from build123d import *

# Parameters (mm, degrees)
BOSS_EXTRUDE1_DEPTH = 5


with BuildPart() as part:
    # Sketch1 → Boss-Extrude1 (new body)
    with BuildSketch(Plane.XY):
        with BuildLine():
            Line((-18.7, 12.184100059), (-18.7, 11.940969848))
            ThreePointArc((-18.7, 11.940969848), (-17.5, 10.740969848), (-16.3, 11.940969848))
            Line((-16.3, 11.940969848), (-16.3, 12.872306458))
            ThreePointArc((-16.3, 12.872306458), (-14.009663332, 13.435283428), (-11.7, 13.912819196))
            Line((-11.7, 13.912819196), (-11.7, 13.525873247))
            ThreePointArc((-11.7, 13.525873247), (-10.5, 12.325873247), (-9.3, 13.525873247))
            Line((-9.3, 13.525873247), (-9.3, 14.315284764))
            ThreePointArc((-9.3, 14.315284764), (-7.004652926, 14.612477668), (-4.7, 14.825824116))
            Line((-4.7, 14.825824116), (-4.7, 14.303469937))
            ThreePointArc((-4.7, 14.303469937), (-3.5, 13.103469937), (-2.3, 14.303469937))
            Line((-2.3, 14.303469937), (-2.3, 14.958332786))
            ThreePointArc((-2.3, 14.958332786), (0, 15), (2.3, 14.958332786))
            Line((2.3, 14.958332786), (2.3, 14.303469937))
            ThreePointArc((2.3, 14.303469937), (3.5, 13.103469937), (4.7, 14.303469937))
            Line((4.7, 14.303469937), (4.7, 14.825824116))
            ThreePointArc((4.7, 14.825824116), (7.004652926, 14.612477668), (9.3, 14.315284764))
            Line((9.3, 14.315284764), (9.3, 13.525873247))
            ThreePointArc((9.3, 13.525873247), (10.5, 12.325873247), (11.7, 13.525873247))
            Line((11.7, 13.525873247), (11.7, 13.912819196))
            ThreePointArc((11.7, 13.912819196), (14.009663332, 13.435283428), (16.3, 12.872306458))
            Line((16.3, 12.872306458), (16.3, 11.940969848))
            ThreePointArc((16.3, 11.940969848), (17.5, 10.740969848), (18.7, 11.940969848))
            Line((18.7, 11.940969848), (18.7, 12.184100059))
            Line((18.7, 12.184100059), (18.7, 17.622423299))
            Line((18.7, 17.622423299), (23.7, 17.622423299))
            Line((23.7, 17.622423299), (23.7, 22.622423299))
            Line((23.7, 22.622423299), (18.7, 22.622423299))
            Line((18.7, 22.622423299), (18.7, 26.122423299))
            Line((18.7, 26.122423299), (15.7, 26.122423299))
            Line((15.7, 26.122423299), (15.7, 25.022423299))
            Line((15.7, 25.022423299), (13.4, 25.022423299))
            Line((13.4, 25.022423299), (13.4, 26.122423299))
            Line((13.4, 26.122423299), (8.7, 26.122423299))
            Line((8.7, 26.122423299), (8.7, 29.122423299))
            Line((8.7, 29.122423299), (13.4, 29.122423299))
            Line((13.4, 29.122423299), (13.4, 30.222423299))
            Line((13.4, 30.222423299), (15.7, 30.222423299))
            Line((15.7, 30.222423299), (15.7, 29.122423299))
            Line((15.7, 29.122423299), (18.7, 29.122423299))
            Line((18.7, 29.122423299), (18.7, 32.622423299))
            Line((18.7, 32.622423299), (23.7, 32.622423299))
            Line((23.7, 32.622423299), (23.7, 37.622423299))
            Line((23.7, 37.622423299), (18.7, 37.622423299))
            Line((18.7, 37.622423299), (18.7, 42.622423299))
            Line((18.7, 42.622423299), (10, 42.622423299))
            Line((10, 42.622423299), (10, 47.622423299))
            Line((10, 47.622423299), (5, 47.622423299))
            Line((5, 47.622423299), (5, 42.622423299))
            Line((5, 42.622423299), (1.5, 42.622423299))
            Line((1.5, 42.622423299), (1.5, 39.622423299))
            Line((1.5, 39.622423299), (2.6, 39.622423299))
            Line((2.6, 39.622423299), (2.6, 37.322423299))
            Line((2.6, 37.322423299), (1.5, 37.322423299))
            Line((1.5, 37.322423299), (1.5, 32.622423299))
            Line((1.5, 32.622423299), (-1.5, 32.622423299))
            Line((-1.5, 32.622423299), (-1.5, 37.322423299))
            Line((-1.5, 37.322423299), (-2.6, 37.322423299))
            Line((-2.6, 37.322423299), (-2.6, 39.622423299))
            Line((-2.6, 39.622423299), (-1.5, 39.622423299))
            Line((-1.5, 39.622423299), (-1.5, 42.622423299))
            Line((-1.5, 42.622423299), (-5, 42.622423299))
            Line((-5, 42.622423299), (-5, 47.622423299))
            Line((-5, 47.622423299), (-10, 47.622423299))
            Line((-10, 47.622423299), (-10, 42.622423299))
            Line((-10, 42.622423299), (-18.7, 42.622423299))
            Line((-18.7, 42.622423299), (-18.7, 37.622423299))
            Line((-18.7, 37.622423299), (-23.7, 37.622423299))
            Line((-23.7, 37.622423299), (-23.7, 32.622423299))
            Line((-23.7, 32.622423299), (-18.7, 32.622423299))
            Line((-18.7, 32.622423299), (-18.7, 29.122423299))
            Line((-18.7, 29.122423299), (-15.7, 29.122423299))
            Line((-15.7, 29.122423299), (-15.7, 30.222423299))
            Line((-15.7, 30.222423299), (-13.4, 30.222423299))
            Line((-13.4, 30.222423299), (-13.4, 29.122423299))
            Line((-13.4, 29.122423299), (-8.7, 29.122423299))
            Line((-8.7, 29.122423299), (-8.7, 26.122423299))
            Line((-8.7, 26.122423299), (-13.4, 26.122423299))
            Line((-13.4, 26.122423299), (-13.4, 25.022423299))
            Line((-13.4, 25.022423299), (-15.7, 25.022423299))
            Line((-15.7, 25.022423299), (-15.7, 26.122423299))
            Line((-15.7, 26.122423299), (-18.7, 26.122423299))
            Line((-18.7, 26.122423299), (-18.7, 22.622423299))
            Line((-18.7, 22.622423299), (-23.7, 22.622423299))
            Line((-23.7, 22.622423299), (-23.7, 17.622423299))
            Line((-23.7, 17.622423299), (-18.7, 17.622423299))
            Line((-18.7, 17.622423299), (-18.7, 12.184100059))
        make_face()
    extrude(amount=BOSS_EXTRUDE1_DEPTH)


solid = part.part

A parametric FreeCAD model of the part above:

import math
import FreeCAD as App
import Part
import Sketcher

doc = App.newDocument("Part")
body = doc.addObject("PartDesign::Body", "Body")

# Sketch on XY plane
sketch1 = doc.addObject("Sketcher::SketchObject", "Sketch")
body.addObject(sketch1)
sketch1.AttachmentSupport = (doc.XY_Plane, [""])
sketch1.MapMode = "FlatFace"
sketch1.addGeometry(Part.ArcOfCircle(Part.Circle(App.Vector(-17.5, 11.94097, 0), App.Vector(0, 0, 1), 1.2), math.radians(180), math.radians(360)), False)
sketch1.addGeometry(Part.LineSegment(App.Vector(-16.3, 11.94097, 0), App.Vector(-16.3, 12.872306, 0)), False)
sketch1.addGeometry(Part.ArcOfCircle(Part.Circle(App.Vector(0, -48.5, 0), App.Vector(0, 0, 1), 63.5), math.radians(100.617524), math.radians(104.873921)), False)
sketch1.addGeometry(Part.LineSegment(App.Vector(-11.7, 13.912819, 0), App.Vector(-11.7, 13.525873, 0)), False)
sketch1.addGeometry(Part.ArcOfCircle(Part.Circle(App.Vector(-10.5, 13.525873, 0), App.Vector(0, 0, 1), 1.2), math.radians(180), math.radians(360)), False)
sketch1.addGeometry(Part.LineSegment(App.Vector(-9.3, 13.525873, 0), App.Vector(-9.3, 14.315285, 0)), False)
sketch1.addGeometry(Part.ArcOfCircle(Part.Circle(App.Vector(0, -48.5, 0), App.Vector(0, 0, 1), 63.5), math.radians(94.244672), math.radians(98.421642)), False)
sketch1.addGeometry(Part.LineSegment(App.Vector(-4.7, 14.825824, 0), App.Vector(-4.7, 14.30347, 0)), False)
sketch1.addGeometry(Part.ArcOfCircle(Part.Circle(App.Vector(-3.5, 14.30347, 0), App.Vector(0, 0, 1), 1.2), math.radians(180), math.radians(360)), False)
sketch1.addGeometry(Part.LineSegment(App.Vector(-2.3, 14.30347, 0), App.Vector(-2.3, 14.958333, 0)), False)
sketch1.addGeometry(Part.ArcOfCircle(Part.Circle(App.Vector(0, -48.5, 0), App.Vector(0, 0, 1), 63.5), math.radians(87.924266), math.radians(92.075734)), False)
sketch1.addGeometry(Part.LineSegment(App.Vector(2.3, 14.958333, 0), App.Vector(2.3, 14.30347, 0)), False)
sketch1.addGeometry(Part.ArcOfCircle(Part.Circle(App.Vector(3.5, 14.30347, 0), App.Vector(0, 0, 1), 1.2), math.radians(180), math.radians(360)), False)
sketch1.addGeometry(Part.LineSegment(App.Vector(4.7, 14.30347, 0), App.Vector(4.7, 14.825824, 0)), False)
sketch1.addGeometry(Part.ArcOfCircle(Part.Circle(App.Vector(0, -48.5, 0), App.Vector(0, 0, 1), 63.5), math.radians(81.578358), math.radians(85.755328)), False)
sketch1.addGeometry(Part.LineSegment(App.Vector(9.3, 14.315285, 0), App.Vector(9.3, 13.525873, 0)), False)
sketch1.addGeometry(Part.ArcOfCircle(Part.Circle(App.Vector(10.5, 13.525873, 0), App.Vector(0, 0, 1), 1.2), math.radians(180), math.radians(360)), False)
sketch1.addGeometry(Part.LineSegment(App.Vector(11.7, 13.525873, 0), App.Vector(11.7, 13.912819, 0)), False)
sketch1.addGeometry(Part.ArcOfCircle(Part.Circle(App.Vector(0, -48.5, 0), App.Vector(0, 0, 1), 63.5), math.radians(75.126079), math.radians(79.382476)), False)
sketch1.addGeometry(Part.LineSegment(App.Vector(16.3, 12.872306, 0), App.Vector(16.3, 11.94097, 0)), False)
sketch1.addGeometry(Part.ArcOfCircle(Part.Circle(App.Vector(17.5, 11.94097, 0), App.Vector(0, 0, 1), 1.2), math.radians(180), math.radians(360)), False)
sketch1.addGeometry(Part.LineSegment(App.Vector(18.7, 11.94097, 0), App.Vector(18.7, 17.622423, 0)), False)
sketch1.addGeometry(Part.LineSegment(App.Vector(18.7, 17.622423, 0), App.Vector(23.7, 17.622423, 0)), False)
sketch1.addGeometry(Part.LineSegment(App.Vector(23.7, 17.622423, 0), App.Vector(23.7, 22.622423, 0)), False)
sketch1.addGeometry(Part.LineSegment(App.Vector(23.7, 22.622423, 0), App.Vector(18.7, 22.622423, 0)), False)
sketch1.addGeometry(Part.LineSegment(App.Vector(18.7, 22.622423, 0), App.Vector(18.7, 26.122423, 0)), False)
sketch1.addGeometry(Part.LineSegment(App.Vector(18.7, 26.122423, 0), App.Vector(15.7, 26.122423, 0)), False)
sketch1.addGeometry(Part.LineSegment(App.Vector(15.7, 26.122423, 0), App.Vector(15.7, 25.022423, 0)), False)
sketch1.addGeometry(Part.LineSegment(App.Vector(15.7, 25.022423, 0), App.Vector(13.4, 25.022423, 0)), False)
sketch1.addGeometry(Part.LineSegment(App.Vector(13.4, 25.022423, 0), App.Vector(13.4, 26.122423, 0)), False)
sketch1.addGeometry(Part.LineSegment(App.Vector(13.4, 26.122423, 0), App.Vector(8.7, 26.122423, 0)), False)
sketch1.addGeometry(Part.LineSegment(App.Vector(8.7, 26.122423, 0), App.Vector(8.7, 29.122423, 0)), False)
sketch1.addGeometry(Part.LineSegment(App.Vector(8.7, 29.122423, 0), App.Vector(13.4, 29.122423, 0)), False)
sketch1.addGeometry(Part.LineSegment(App.Vector(13.4, 29.122423, 0), App.Vector(13.4, 30.222423, 0)), False)
sketch1.addGeometry(Part.LineSegment(App.Vector(13.4, 30.222423, 0), App.Vector(15.7, 30.222423, 0)), False)
sketch1.addGeometry(Part.LineSegment(App.Vector(15.7, 30.222423, 0), App.Vector(15.7, 29.122423, 0)), False)
sketch1.addGeometry(Part.LineSegment(App.Vector(15.7, 29.122423, 0), App.Vector(18.7, 29.122423, 0)), False)
sketch1.addGeometry(Part.LineSegment(App.Vector(18.7, 29.122423, 0), App.Vector(18.7, 32.622423, 0)), False)
sketch1.addGeometry(Part.LineSegment(App.Vector(18.7, 32.622423, 0), App.Vector(23.7, 32.622423, 0)), False)
sketch1.addGeometry(Part.LineSegment(App.Vector(23.7, 32.622423, 0), App.Vector(23.7, 37.622423, 0)), False)
sketch1.addGeometry(Part.LineSegment(App.Vector(23.7, 37.622423, 0), App.Vector(18.7, 37.622423, 0)), False)
sketch1.addGeometry(Part.LineSegment(App.Vector(18.7, 37.622423, 0), App.Vector(18.7, 42.622423, 0)), False)
sketch1.addGeometry(Part.LineSegment(App.Vector(18.7, 42.622423, 0), App.Vector(10, 42.622423, 0)), False)
sketch1.addGeometry(Part.LineSegment(App.Vector(10, 42.622423, 0), App.Vector(10, 47.622423, 0)), False)
sketch1.addGeometry(Part.LineSegment(App.Vector(10, 47.622423, 0), App.Vector(5, 47.622423, 0)), False)
sketch1.addGeometry(Part.LineSegment(App.Vector(5, 47.622423, 0), App.Vector(5, 42.622423, 0)), False)
sketch1.addGeometry(Part.LineSegment(App.Vector(5, 42.622423, 0), App.Vector(1.5, 42.622423, 0)), False)
sketch1.addGeometry(Part.LineSegment(App.Vector(1.5, 42.622423, 0), App.Vector(1.5, 39.622423, 0)), False)
sketch1.addGeometry(Part.LineSegment(App.Vector(1.5, 39.622423, 0), App.Vector(2.6, 39.622423, 0)), False)
sketch1.addGeometry(Part.LineSegment(App.Vector(2.6, 39.622423, 0), App.Vector(2.6, 37.322423, 0)), False)
sketch1.addGeometry(Part.LineSegment(App.Vector(2.6, 37.322423, 0), App.Vector(1.5, 37.322423, 0)), False)
sketch1.addGeometry(Part.LineSegment(App.Vector(1.5, 37.322423, 0), App.Vector(1.5, 32.622423, 0)), False)
sketch1.addGeometry(Part.LineSegment(App.Vector(1.5, 32.622423, 0), App.Vector(-1.5, 32.622423, 0)), False)
sketch1.addGeometry(Part.LineSegment(App.Vector(-1.5, 32.622423, 0), App.Vector(-1.5, 37.322423, 0)), False)
sketch1.addGeometry(Part.LineSegment(App.Vector(-1.5, 37.322423, 0), App.Vector(-2.6, 37.322423, 0)), False)
sketch1.addGeometry(Part.LineSegment(App.Vector(-2.6, 37.322423, 0), App.Vector(-2.6, 39.622423, 0)), False)
sketch1.addGeometry(Part.LineSegment(App.Vector(-2.6, 39.622423, 0), App.Vector(-1.5, 39.622423, 0)), False)
sketch1.addGeometry(Part.LineSegment(App.Vector(-1.5, 39.622423, 0), App.Vector(-1.5, 42.622423, 0)), False)
sketch1.addGeometry(Part.LineSegment(App.Vector(-1.5, 42.622423, 0), App.Vector(-5, 42.622423, 0)), False)
sketch1.addGeometry(Part.LineSegment(App.Vector(-5, 42.622423, 0), App.Vector(-5, 47.622423, 0)), False)
sketch1.addGeometry(Part.LineSegment(App.Vector(-5, 47.622423, 0), App.Vector(-10, 47.622423, 0)), False)
sketch1.addGeometry(Part.LineSegment(App.Vector(-10, 47.622423, 0), App.Vector(-10, 42.622423, 0)), False)
sketch1.addGeometry(Part.LineSegment(App.Vector(-10, 42.622423, 0), App.Vector(-18.7, 42.622423, 0)), False)
sketch1.addGeometry(Part.LineSegment(App.Vector(-18.7, 42.622423, 0), App.Vector(-18.7, 37.622423, 0)), False)
sketch1.addGeometry(Part.LineSegment(App.Vector(-18.7, 37.622423, 0), App.Vector(-23.7, 37.622423, 0)), False)
sketch1.addGeometry(Part.LineSegment(App.Vector(-23.7, 37.622423, 0), App.Vector(-23.7, 32.622423, 0)), False)
sketch1.addGeometry(Part.LineSegment(App.Vector(-23.7, 32.622423, 0), App.Vector(-18.7, 32.622423, 0)), False)
sketch1.addGeometry(Part.LineSegment(App.Vector(-18.7, 32.622423, 0), App.Vector(-18.7, 29.122423, 0)), False)
sketch1.addGeometry(Part.LineSegment(App.Vector(-18.7, 29.122423, 0), App.Vector(-15.7, 29.122423, 0)), False)
sketch1.addGeometry(Part.LineSegment(App.Vector(-15.7, 29.122423, 0), App.Vector(-15.7, 30.222423, 0)), False)
sketch1.addGeometry(Part.LineSegment(App.Vector(-15.7, 30.222423, 0), App.Vector(-13.4, 30.222423, 0)), False)
sketch1.addGeometry(Part.LineSegment(App.Vector(-13.4, 30.222423, 0), App.Vector(-13.4, 29.122423, 0)), False)
sketch1.addGeometry(Part.LineSegment(App.Vector(-13.4, 29.122423, 0), App.Vector(-8.7, 29.122423, 0)), False)
sketch1.addGeometry(Part.LineSegment(App.Vector(-8.7, 29.122423, 0), App.Vector(-8.7, 26.122423, 0)), False)
sketch1.addGeometry(Part.LineSegment(App.Vector(-8.7, 26.122423, 0), App.Vector(-13.4, 26.122423, 0)), False)
sketch1.addGeometry(Part.LineSegment(App.Vector(-13.4, 26.122423, 0), App.Vector(-13.4, 25.022423, 0)), False)
sketch1.addGeometry(Part.LineSegment(App.Vector(-13.4, 25.022423, 0), App.Vector(-15.7, 25.022423, 0)), False)
sketch1.addGeometry(Part.LineSegment(App.Vector(-15.7, 25.022423, 0), App.Vector(-15.7, 26.122423, 0)), False)
sketch1.addGeometry(Part.LineSegment(App.Vector(-15.7, 26.122423, 0), App.Vector(-18.7, 26.122423, 0)), False)
sketch1.addGeometry(Part.LineSegment(App.Vector(-18.7, 26.122423, 0), App.Vector(-18.7, 22.622423, 0)), False)
sketch1.addGeometry(Part.LineSegment(App.Vector(-18.7, 22.622423, 0), App.Vector(-23.7, 22.622423, 0)), False)
sketch1.addGeometry(Part.LineSegment(App.Vector(-23.7, 22.622423, 0), App.Vector(-23.7, 17.622423, 0)), False)
sketch1.addGeometry(Part.LineSegment(App.Vector(-23.7, 17.622423, 0), App.Vector(-18.7, 17.622423, 0)), False)
sketch1.addGeometry(Part.LineSegment(App.Vector(-18.7, 17.622423, 0), App.Vector(-18.7, 11.94097, 0)), False)
sketch1.addConstraint(Sketcher.Constraint("Tangent", 0, 2, 1, 1))
sketch1.addConstraint(Sketcher.Constraint("Coincident", 1, 2, 2, 2))
sketch1.addConstraint(Sketcher.Constraint("Coincident", 2, 1, 3, 1))
sketch1.addConstraint(Sketcher.Constraint("Tangent", 3, 2, 4, 1))
sketch1.addConstraint(Sketcher.Constraint("Tangent", 4, 2, 5, 1))
sketch1.addConstraint(Sketcher.Constraint("Coincident", 5, 2, 6, 2))
sketch1.addConstraint(Sketcher.Constraint("Coincident", 6, 1, 7, 1))
sketch1.addConstraint(Sketcher.Constraint("Tangent", 7, 2, 8, 1))
sketch1.addConstraint(Sketcher.Constraint("Tangent", 8, 2, 9, 1))
sketch1.addConstraint(Sketcher.Constraint("Coincident", 9, 2, 10, 2))
sketch1.addConstraint(Sketcher.Constraint("Coincident", 10, 1, 11, 1))
sketch1.addConstraint(Sketcher.Constraint("Tangent", 11, 2, 12, 1))
sketch1.addConstraint(Sketcher.Constraint("Tangent", 12, 2, 13, 1))
sketch1.addConstraint(Sketcher.Constraint("Coincident", 13, 2, 14, 2))
sketch1.addConstraint(Sketcher.Constraint("Coincident", 14, 1, 15, 1))
sketch1.addConstraint(Sketcher.Constraint("Tangent", 15, 2, 16, 1))
sketch1.addConstraint(Sketcher.Constraint("Tangent", 16, 2, 17, 1))
sketch1.addConstraint(Sketcher.Constraint("Coincident", 17, 2, 18, 2))
sketch1.addConstraint(Sketcher.Constraint("Coincident", 18, 1, 19, 1))
sketch1.addConstraint(Sketcher.Constraint("Tangent", 19, 2, 20, 1))
sketch1.addConstraint(Sketcher.Constraint("Tangent", 20, 2, 21, 1))
sketch1.addConstraint(Sketcher.Constraint("Coincident", 21, 2, 22, 1))
sketch1.addConstraint(Sketcher.Constraint("Coincident", 22, 2, 23, 1))
sketch1.addConstraint(Sketcher.Constraint("Coincident", 23, 2, 24, 1))
sketch1.addConstraint(Sketcher.Constraint("Coincident", 24, 2, 25, 1))
sketch1.addConstraint(Sketcher.Constraint("Coincident", 25, 2, 26, 1))
sketch1.addConstraint(Sketcher.Constraint("Coincident", 26, 2, 27, 1))
sketch1.addConstraint(Sketcher.Constraint("Coincident", 27, 2, 28, 1))
sketch1.addConstraint(Sketcher.Constraint("Coincident", 28, 2, 29, 1))
sketch1.addConstraint(Sketcher.Constraint("Coincident", 29, 2, 30, 1))
sketch1.addConstraint(Sketcher.Constraint("Coincident", 30, 2, 31, 1))
sketch1.addConstraint(Sketcher.Constraint("Coincident", 31, 2, 32, 1))
sketch1.addConstraint(Sketcher.Constraint("Coincident", 32, 2, 33, 1))
sketch1.addConstraint(Sketcher.Constraint("Coincident", 33, 2, 34, 1))
sketch1.addConstraint(Sketcher.Constraint("Coincident", 34, 2, 35, 1))
sketch1.addConstraint(Sketcher.Constraint("Coincident", 35, 2, 36, 1))
sketch1.addConstraint(Sketcher.Constraint("Coincident", 36, 2, 37, 1))
sketch1.addConstraint(Sketcher.Constraint("Coincident", 37, 2, 38, 1))
sketch1.addConstraint(Sketcher.Constraint("Coincident", 38, 2, 39, 1))
sketch1.addConstraint(Sketcher.Constraint("Coincident", 39, 2, 40, 1))
sketch1.addConstraint(Sketcher.Constraint("Coincident", 40, 2, 41, 1))
sketch1.addConstraint(Sketcher.Constraint("Coincident", 41, 2, 42, 1))
sketch1.addConstraint(Sketcher.Constraint("Coincident", 42, 2, 43, 1))
sketch1.addConstraint(Sketcher.Constraint("Coincident", 43, 2, 44, 1))
sketch1.addConstraint(Sketcher.Constraint("Coincident", 44, 2, 45, 1))
sketch1.addConstraint(Sketcher.Constraint("Coincident", 45, 2, 46, 1))
sketch1.addConstraint(Sketcher.Constraint("Coincident", 46, 2, 47, 1))
sketch1.addConstraint(Sketcher.Constraint("Coincident", 47, 2, 48, 1))
sketch1.addConstraint(Sketcher.Constraint("Coincident", 48, 2, 49, 1))
sketch1.addConstraint(Sketcher.Constraint("Coincident", 49, 2, 50, 1))
sketch1.addConstraint(Sketcher.Constraint("Coincident", 50, 2, 51, 1))
sketch1.addConstraint(Sketcher.Constraint("Coincident", 51, 2, 52, 1))
sketch1.addConstraint(Sketcher.Constraint("Coincident", 52, 2, 53, 1))
sketch1.addConstraint(Sketcher.Constraint("Coincident", 53, 2, 54, 1))
sketch1.addConstraint(Sketcher.Constraint("Coincident", 54, 2, 55, 1))
sketch1.addConstraint(Sketcher.Constraint("Coincident", 55, 2, 56, 1))
sketch1.addConstraint(Sketcher.Constraint("Coincident", 56, 2, 57, 1))
sketch1.addConstraint(Sketcher.Constraint("Coincident", 57, 2, 58, 1))
sketch1.addConstraint(Sketcher.Constraint("Coincident", 58, 2, 59, 1))
sketch1.addConstraint(Sketcher.Constraint("Coincident", 59, 2, 60, 1))
sketch1.addConstraint(Sketcher.Constraint("Coincident", 60, 2, 61, 1))
sketch1.addConstraint(Sketcher.Constraint("Coincident", 61, 2, 62, 1))
sketch1.addConstraint(Sketcher.Constraint("Coincident", 62, 2, 63, 1))
sketch1.addConstraint(Sketcher.Constraint("Coincident", 63, 2, 64, 1))
sketch1.addConstraint(Sketcher.Constraint("Coincident", 64, 2, 65, 1))
sketch1.addConstraint(Sketcher.Constraint("Coincident", 65, 2, 66, 1))
sketch1.addConstraint(Sketcher.Constraint("Coincident", 66, 2, 67, 1))
sketch1.addConstraint(Sketcher.Constraint("Coincident", 67, 2, 68, 1))
sketch1.addConstraint(Sketcher.Constraint("Coincident", 68, 2, 69, 1))
sketch1.addConstraint(Sketcher.Constraint("Coincident", 69, 2, 70, 1))
sketch1.addConstraint(Sketcher.Constraint("Coincident", 70, 2, 71, 1))
sketch1.addConstraint(Sketcher.Constraint("Coincident", 71, 2, 72, 1))
sketch1.addConstraint(Sketcher.Constraint("Coincident", 72, 2, 73, 1))
sketch1.addConstraint(Sketcher.Constraint("Coincident", 73, 2, 74, 1))
sketch1.addConstraint(Sketcher.Constraint("Coincident", 74, 2, 75, 1))
sketch1.addConstraint(Sketcher.Constraint("Coincident", 75, 2, 76, 1))
sketch1.addConstraint(Sketcher.Constraint("Coincident", 76, 2, 77, 1))
sketch1.addConstraint(Sketcher.Constraint("Coincident", 77, 2, 78, 1))
sketch1.addConstraint(Sketcher.Constraint("Coincident", 78, 2, 79, 1))
sketch1.addConstraint(Sketcher.Constraint("Coincident", 79, 2, 80, 1))
sketch1.addConstraint(Sketcher.Constraint("Coincident", 80, 2, 81, 1))
sketch1.addConstraint(Sketcher.Constraint("Coincident", 81, 2, 82, 1))
sketch1.addConstraint(Sketcher.Constraint("Coincident", 82, 2, 83, 1))
sketch1.addConstraint(Sketcher.Constraint("Tangent", 83, 2, 0, 1))
sketch1.addConstraint(Sketcher.Constraint("Vertical", 1))
sketch1.addConstraint(Sketcher.Constraint("Vertical", 3))
sketch1.addConstraint(Sketcher.Constraint("Vertical", 5))
sketch1.addConstraint(Sketcher.Constraint("Vertical", 7))
sketch1.addConstraint(Sketcher.Constraint("Vertical", 9))
sketch1.addConstraint(Sketcher.Constraint("Vertical", 11))
sketch1.addConstraint(Sketcher.Constraint("Vertical", 13))
sketch1.addConstraint(Sketcher.Constraint("Vertical", 15))
sketch1.addConstraint(Sketcher.Constraint("Vertical", 17))
sketch1.addConstraint(Sketcher.Constraint("Vertical", 19))
sketch1.addConstraint(Sketcher.Constraint("Vertical", 21))
sketch1.addConstraint(Sketcher.Constraint("Horizontal", 22))
sketch1.addConstraint(Sketcher.Constraint("Vertical", 23))
sketch1.addConstraint(Sketcher.Constraint("Horizontal", 24))
sketch1.addConstraint(Sketcher.Constraint("Vertical", 25))
sketch1.addConstraint(Sketcher.Constraint("Horizontal", 26))
sketch1.addConstraint(Sketcher.Constraint("Vertical", 27))
sketch1.addConstraint(Sketcher.Constraint("Horizontal", 28))
sketch1.addConstraint(Sketcher.Constraint("Vertical", 29))
sketch1.addConstraint(Sketcher.Constraint("Horizontal", 30))
sketch1.addConstraint(Sketcher.Constraint("Vertical", 31))
sketch1.addConstraint(Sketcher.Constraint("Horizontal", 32))
sketch1.addConstraint(Sketcher.Constraint("Vertical", 33))
sketch1.addConstraint(Sketcher.Constraint("Horizontal", 34))
sketch1.addConstraint(Sketcher.Constraint("Vertical", 35))
sketch1.addConstraint(Sketcher.Constraint("Horizontal", 36))
sketch1.addConstraint(Sketcher.Constraint("Vertical", 37))
sketch1.addConstraint(Sketcher.Constraint("Horizontal", 38))
sketch1.addConstraint(Sketcher.Constraint("Vertical", 39))
sketch1.addConstraint(Sketcher.Constraint("Horizontal", 40))
sketch1.addConstraint(Sketcher.Constraint("Vertical", 41))
sketch1.addConstraint(Sketcher.Constraint("Horizontal", 42))
sketch1.addConstraint(Sketcher.Constraint("Vertical", 43))
sketch1.addConstraint(Sketcher.Constraint("Horizontal", 44))
sketch1.addConstraint(Sketcher.Constraint("Vertical", 45))
sketch1.addConstraint(Sketcher.Constraint("Horizontal", 46))
sketch1.addConstraint(Sketcher.Constraint("Vertical", 47))
sketch1.addConstraint(Sketcher.Constraint("Horizontal", 48))
sketch1.addConstraint(Sketcher.Constraint("Vertical", 49))
sketch1.addConstraint(Sketcher.Constraint("Horizontal", 50))
sketch1.addConstraint(Sketcher.Constraint("Vertical", 51))
sketch1.addConstraint(Sketcher.Constraint("Horizontal", 52))
sketch1.addConstraint(Sketcher.Constraint("Vertical", 53))
sketch1.addConstraint(Sketcher.Constraint("Horizontal", 54))
sketch1.addConstraint(Sketcher.Constraint("Vertical", 55))
sketch1.addConstraint(Sketcher.Constraint("Horizontal", 56))
sketch1.addConstraint(Sketcher.Constraint("Vertical", 57))
sketch1.addConstraint(Sketcher.Constraint("Horizontal", 58))
sketch1.addConstraint(Sketcher.Constraint("Vertical", 59))
sketch1.addConstraint(Sketcher.Constraint("Horizontal", 60))
sketch1.addConstraint(Sketcher.Constraint("Vertical", 61))
sketch1.addConstraint(Sketcher.Constraint("Horizontal", 62))
sketch1.addConstraint(Sketcher.Constraint("Vertical", 63))
sketch1.addConstraint(Sketcher.Constraint("Horizontal", 64))
sketch1.addConstraint(Sketcher.Constraint("Vertical", 65))
sketch1.addConstraint(Sketcher.Constraint("Horizontal", 66))
sketch1.addConstraint(Sketcher.Constraint("Vertical", 67))
sketch1.addConstraint(Sketcher.Constraint("Horizontal", 68))
sketch1.addConstraint(Sketcher.Constraint("Vertical", 69))
sketch1.addConstraint(Sketcher.Constraint("Horizontal", 70))
sketch1.addConstraint(Sketcher.Constraint("Vertical", 71))
sketch1.addConstraint(Sketcher.Constraint("Horizontal", 72))
sketch1.addConstraint(Sketcher.Constraint("Vertical", 73))
sketch1.addConstraint(Sketcher.Constraint("Horizontal", 74))
sketch1.addConstraint(Sketcher.Constraint("Vertical", 75))
sketch1.addConstraint(Sketcher.Constraint("Horizontal", 76))
sketch1.addConstraint(Sketcher.Constraint("Vertical", 77))
sketch1.addConstraint(Sketcher.Constraint("Horizontal", 78))
sketch1.addConstraint(Sketcher.Constraint("Vertical", 79))
sketch1.addConstraint(Sketcher.Constraint("Horizontal", 80))
sketch1.addConstraint(Sketcher.Constraint("Vertical", 81))
sketch1.addConstraint(Sketcher.Constraint("Horizontal", 82))
sketch1.addConstraint(Sketcher.Constraint("Vertical", 83))
sketch1.addConstraint(Sketcher.Constraint("Coincident", 6, 3, 2, 3))
sketch1.addConstraint(Sketcher.Constraint("Coincident", 10, 3, 2, 3))
sketch1.addConstraint(Sketcher.Constraint("Coincident", 14, 3, 2, 3))
sketch1.addConstraint(Sketcher.Constraint("Coincident", 18, 3, 2, 3))
sketch1.addConstraint(Sketcher.Constraint("Equal", 0, 4))
sketch1.addConstraint(Sketcher.Constraint("Equal", 2, 6))
sketch1.addConstraint(Sketcher.Constraint("Equal", 4, 8))
sketch1.addConstraint(Sketcher.Constraint("Equal", 6, 10))
sketch1.addConstraint(Sketcher.Constraint("Equal", 8, 12))
sketch1.addConstraint(Sketcher.Constraint("Equal", 10, 14))
sketch1.addConstraint(Sketcher.Constraint("Equal", 12, 16))
sketch1.addConstraint(Sketcher.Constraint("Equal", 14, 18))
sketch1.addConstraint(Sketcher.Constraint("Equal", 16, 20))
sketch1.addConstraint(Sketcher.Constraint("Symmetric", 8, 3, 12, 3, -2))
sketch1.addConstraint(Sketcher.Constraint("Symmetric", 4, 3, 16, 3, -2))
sketch1.addConstraint(Sketcher.Constraint("Symmetric", 0, 3, 20, 3, -2))
sketch1.addConstraint(Sketcher.Constraint("Symmetric", 50, 2, 53, 2, -2))
sketch1.addConstraint(Sketcher.Constraint("Symmetric", 48, 2, 55, 2, -2))
sketch1.addConstraint(Sketcher.Constraint("Symmetric", 46, 2, 57, 2, -2))
sketch1.addConstraint(Sketcher.Constraint("Symmetric", 44, 2, 59, 2, -2))
sketch1.addConstraint(Sketcher.Constraint("Symmetric", 42, 2, 61, 2, -2))
sketch1.addConstraint(Sketcher.Constraint("Symmetric", 40, 2, 63, 2, -2))
sketch1.addConstraint(Sketcher.Constraint("Symmetric", 38, 2, 65, 2, -2))
sketch1.addConstraint(Sketcher.Constraint("Symmetric", 36, 2, 67, 2, -2))
sketch1.addConstraint(Sketcher.Constraint("Symmetric", 34, 2, 69, 2, -2))
sketch1.addConstraint(Sketcher.Constraint("Symmetric", 32, 2, 71, 2, -2))
sketch1.addConstraint(Sketcher.Constraint("Symmetric", 30, 2, 73, 2, -2))
sketch1.addConstraint(Sketcher.Constraint("Symmetric", 28, 2, 75, 2, -2))
sketch1.addConstraint(Sketcher.Constraint("Symmetric", 26, 2, 77, 2, -2))
sketch1.addConstraint(Sketcher.Constraint("Symmetric", 24, 2, 79, 2, -2))
sketch1.addConstraint(Sketcher.Constraint("Symmetric", 22, 2, 81, 2, -2))
sketch1.addConstraint(Sketcher.Constraint("PointOnObject", 2, 3, -2))
sketch1.addConstraint(Sketcher.Constraint("Horizontal", 26, 2, 29, 2))
sketch1.addConstraint(Sketcher.Constraint("Horizontal", 32, 2, 35, 2))
sketch1.addConstraint(Sketcher.Constraint("Horizontal", 42, 2, 45, 2))
sketch1.addConstraint(Sketcher.Constraint("Horizontal", 38, 2, 51, 2))
sketch1.addConstraint(Sketcher.Constraint("Vertical", 21, 2, 24, 2))
sketch1.addConstraint(Sketcher.Constraint("Vertical", 29, 2, 32, 2))
sketch1.addConstraint(Sketcher.Constraint("Vertical", 27, 2, 34, 2))
sketch1.addConstraint(Sketcher.Constraint("Vertical", 25, 2, 36, 2))
sketch1.addConstraint(Sketcher.Constraint("Vertical", 23, 2, 38, 2))
sketch1.addConstraint(Sketcher.Constraint("Vertical", 37, 2, 40, 2))
sketch1.addConstraint(Sketcher.Constraint("Vertical", 47, 2, 50, 2))
sketch1.addConstraint(Sketcher.Constraint("Equal", 40, 44))
sketch1.addConstraint(Sketcher.Constraint("Equal", 36, 52))
sketch1.addConstraint(Sketcher.Constraint("Equal", 82, 23))
sketch1.addConstraint(Sketcher.Constraint("Equal", 58, 25))
sketch1.addConstraint(Sketcher.Constraint("Equal", 56, 27))
sketch1.addConstraint(Sketcher.Constraint("Equal", 78, 31))
sketch1.addConstraint(Sketcher.Constraint("Equal", 29, 33))
sketch1.addConstraint(Sketcher.Constraint("Equal", 25, 37))
sketch1.addConstraint(Sketcher.Constraint("Equal", 23, 39))
sketch1.addConstraint(Sketcher.Constraint("Equal", 39, 41))
sketch1.addConstraint(Sketcher.Constraint("Equal", 41, 43))
sketch1.addConstraint(Sketcher.Constraint("Equal", 31, 47))
sketch1.addConstraint(Sketcher.Constraint("Equal", 76, 49))
sketch1.addConstraint(Sketcher.Constraint("Equal", 74, 51))
sketch1.addConstraint(Sketcher.Constraint("Radius", 0, 1.2))
sketch1.addConstraint(Sketcher.Constraint("Radius", 2, 63.5))
sketch1.addConstraint(Sketcher.Constraint("DistanceX", 22, 1, 22, 2, 5.0))
sketch1.addConstraint(Sketcher.Constraint("DistanceX", 26, 2, 26, 1, 3.0))
sketch1.addConstraint(Sketcher.Constraint("DistanceX", 28, 2, 28, 1, 2.3))
sketch1.addConstraint(Sketcher.Constraint("DistanceX", 42, 2, 42, 1, 8.7))
sketch1.addConstraint(Sketcher.Constraint("DistanceX", 46, 2, 46, 1, 3.5))
sketch1.addConstraint(Sketcher.Constraint("DistanceX", 48, 1, 48, 2, 1.1))
sketch1.addConstraint(Sketcher.Constraint("DistanceY", 2, 3, -1, 1, 48.5))
sketch1.addConstraint(Sketcher.Constraint("DistanceX", 4, 3, -1, 1, 10.5))
sketch1.addConstraint(Sketcher.Constraint("DistanceX", 8, 3, -1, 1, 3.5))
sketch1.addConstraint(Sketcher.Constraint("DistanceY", 5, 1, 5, 2, 0.789412))
sketch1.addConstraint(Sketcher.Constraint("DistanceY", 1, 1, 1, 2, 0.931337))
sketch1.addConstraint(Sketcher.Constraint("DistanceY", 7, 2, 7, 1, 0.522354))
sketch1.addConstraint(Sketcher.Constraint("DistanceY", 21, 1, 21, 2, 5.681453))
pad1 = doc.addObject("PartDesign::Pad", "Pad")
body.addObject(pad1)
pad1.Profile = sketch1
pad1.Length = 5

doc.recompute()
